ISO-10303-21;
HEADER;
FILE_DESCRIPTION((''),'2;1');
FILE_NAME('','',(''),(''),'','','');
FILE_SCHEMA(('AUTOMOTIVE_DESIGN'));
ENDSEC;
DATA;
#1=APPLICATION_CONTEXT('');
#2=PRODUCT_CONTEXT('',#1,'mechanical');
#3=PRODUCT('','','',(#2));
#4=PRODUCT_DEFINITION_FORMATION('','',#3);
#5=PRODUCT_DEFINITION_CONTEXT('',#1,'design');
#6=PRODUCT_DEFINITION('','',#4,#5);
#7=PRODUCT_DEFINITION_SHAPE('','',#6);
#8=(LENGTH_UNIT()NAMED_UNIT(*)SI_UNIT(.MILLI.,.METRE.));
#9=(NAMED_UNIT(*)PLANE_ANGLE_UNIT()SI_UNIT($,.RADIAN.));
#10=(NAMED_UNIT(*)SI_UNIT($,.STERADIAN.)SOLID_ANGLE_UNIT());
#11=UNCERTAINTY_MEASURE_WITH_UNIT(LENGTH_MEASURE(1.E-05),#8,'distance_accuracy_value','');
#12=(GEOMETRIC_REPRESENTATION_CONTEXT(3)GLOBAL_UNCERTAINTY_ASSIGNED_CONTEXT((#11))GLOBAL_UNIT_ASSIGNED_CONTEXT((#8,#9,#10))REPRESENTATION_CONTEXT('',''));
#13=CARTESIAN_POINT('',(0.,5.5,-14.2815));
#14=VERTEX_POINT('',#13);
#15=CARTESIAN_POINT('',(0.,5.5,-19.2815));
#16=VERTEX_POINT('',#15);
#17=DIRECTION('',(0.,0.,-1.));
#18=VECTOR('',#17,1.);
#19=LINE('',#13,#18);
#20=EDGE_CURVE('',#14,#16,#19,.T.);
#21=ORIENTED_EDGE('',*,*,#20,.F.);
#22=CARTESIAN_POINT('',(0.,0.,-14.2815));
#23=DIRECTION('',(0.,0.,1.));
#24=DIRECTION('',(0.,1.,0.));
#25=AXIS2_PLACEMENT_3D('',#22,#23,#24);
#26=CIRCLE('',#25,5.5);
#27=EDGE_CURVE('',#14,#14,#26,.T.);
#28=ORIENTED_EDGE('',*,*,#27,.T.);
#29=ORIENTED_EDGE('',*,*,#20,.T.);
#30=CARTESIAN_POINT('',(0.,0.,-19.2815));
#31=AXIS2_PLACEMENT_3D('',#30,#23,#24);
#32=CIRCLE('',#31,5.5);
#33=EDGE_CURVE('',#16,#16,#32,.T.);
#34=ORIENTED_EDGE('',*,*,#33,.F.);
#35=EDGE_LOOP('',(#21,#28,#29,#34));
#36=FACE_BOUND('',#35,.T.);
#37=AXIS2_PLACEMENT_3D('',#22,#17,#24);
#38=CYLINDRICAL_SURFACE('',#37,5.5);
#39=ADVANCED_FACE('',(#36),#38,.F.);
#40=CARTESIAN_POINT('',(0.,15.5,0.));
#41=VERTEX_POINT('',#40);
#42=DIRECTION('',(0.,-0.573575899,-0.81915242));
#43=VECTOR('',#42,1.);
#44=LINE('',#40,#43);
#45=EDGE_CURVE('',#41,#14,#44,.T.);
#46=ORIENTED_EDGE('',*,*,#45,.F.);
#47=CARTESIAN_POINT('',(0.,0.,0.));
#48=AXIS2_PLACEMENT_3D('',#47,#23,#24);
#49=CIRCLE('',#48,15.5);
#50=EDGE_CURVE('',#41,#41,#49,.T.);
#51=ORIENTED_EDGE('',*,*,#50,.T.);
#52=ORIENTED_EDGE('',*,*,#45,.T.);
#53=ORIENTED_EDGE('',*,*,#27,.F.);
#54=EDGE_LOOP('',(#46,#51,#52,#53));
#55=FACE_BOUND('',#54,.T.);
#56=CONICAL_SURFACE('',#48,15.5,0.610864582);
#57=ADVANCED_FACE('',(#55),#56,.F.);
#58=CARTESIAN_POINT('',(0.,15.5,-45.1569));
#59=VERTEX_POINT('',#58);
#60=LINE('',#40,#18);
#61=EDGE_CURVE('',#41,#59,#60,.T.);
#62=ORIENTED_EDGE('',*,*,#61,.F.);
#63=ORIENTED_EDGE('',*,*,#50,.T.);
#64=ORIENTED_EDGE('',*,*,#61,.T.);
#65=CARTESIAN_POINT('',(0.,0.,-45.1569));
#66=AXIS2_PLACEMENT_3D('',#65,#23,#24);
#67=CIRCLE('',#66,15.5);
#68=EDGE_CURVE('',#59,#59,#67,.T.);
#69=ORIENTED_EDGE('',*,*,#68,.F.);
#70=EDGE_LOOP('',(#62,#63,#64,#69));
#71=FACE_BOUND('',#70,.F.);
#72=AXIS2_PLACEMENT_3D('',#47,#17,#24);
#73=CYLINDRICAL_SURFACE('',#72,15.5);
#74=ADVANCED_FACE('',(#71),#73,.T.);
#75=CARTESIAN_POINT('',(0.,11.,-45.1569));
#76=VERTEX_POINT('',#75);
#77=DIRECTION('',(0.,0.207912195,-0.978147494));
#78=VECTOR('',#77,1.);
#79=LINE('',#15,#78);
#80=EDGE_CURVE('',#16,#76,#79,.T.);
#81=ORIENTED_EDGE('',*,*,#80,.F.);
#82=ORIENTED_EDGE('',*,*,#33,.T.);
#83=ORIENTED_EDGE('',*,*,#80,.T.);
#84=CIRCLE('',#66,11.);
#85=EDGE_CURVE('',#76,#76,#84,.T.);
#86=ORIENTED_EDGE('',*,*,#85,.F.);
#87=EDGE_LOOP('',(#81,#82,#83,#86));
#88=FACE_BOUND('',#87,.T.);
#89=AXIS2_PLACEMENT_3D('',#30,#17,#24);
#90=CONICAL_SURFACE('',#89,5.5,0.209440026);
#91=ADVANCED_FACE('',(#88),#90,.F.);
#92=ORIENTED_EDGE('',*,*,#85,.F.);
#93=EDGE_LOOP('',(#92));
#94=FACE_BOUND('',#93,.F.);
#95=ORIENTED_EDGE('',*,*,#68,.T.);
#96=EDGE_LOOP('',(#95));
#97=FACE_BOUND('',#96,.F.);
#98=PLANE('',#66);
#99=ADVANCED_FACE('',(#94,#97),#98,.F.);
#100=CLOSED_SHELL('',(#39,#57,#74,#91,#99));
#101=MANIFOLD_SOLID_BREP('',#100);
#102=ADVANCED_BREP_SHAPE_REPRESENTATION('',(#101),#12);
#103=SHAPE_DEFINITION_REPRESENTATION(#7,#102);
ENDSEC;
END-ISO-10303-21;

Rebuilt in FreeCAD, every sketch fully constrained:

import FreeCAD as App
import Part
import Sketcher
from FreeCAD import Vector
Q = App.Units.Quantity


def add_polygon(sketch, points):
    """Adds a closed chain of lines whose ends are joined by coincident constraints."""
    first, n = sketch.GeometryCount, len(points)
    for a, b in zip(points, points[1:] + points[:1]):
        sketch.addGeometry(Part.LineSegment(App.Vector(*a, 0), App.Vector(*b, 0)), False)
    for i in range(n):
        sketch.addConstraint(Sketcher.Constraint("Coincident", first + i, 2, first + (i + 1) % n, 1))

doc = App.newDocument("Part")
params = doc.addObject("Spreadsheet::Sheet", "Params")
for row, (alias, value) in enumerate([
    ("sketch1_height", "5 mm"),
    ("revolution_angle", "360 deg"),
], start=1):
    params.set(f"A{row}", alias)
    params.set(f"B{row}", "=" + value)
    params.setAlias(f"B{row}", alias)

body = doc.addObject("PartDesign::Body", "Body")

sketch1 = body.newObject("Sketcher::SketchObject", "Sketch")
sketch1.AttachmentSupport = (doc.getObject("YZ_Plane"), [""])
sketch1.MapMode = "FlatFace"
add_polygon(sketch1, [(15.5, -45.1569), (15.5, 0), (5.5, -14.2815), (5.5, -19.2815), (11, -45.1569)])
sketch1.addConstraint([
    Sketcher.Constraint("Vertical", 0),
    Sketcher.Constraint("Vertical", 2),
    Sketcher.Constraint("Horizontal", 4),
    Sketcher.Constraint("PointOnObject", 0, 2, -1),
    Sketcher.Constraint("DistanceY", 2, 2, 2, 1, 5.0),
    Sketcher.Constraint("Angle", 1, Q("-125 deg")),
    Sketcher.Constraint("DistanceX", -1, 1, 3, 2, 11.0),
    Sketcher.Constraint("DistanceX", -1, 1, 0, 2, 15.5),
    Sketcher.Constraint("DistanceX", -1, 1, 1, 2, 5.5),
    Sketcher.Constraint("DistanceY", 0, 1, 0, 2, 45.157),
])
sketch1.setExpression("Constraints[9]", "Params.sketch1_height")
revolution = body.newObject("PartDesign::Revolution", "Revolution")
revolution.Profile = sketch1
revolution.ReferenceAxis = (sketch1, ["V_Axis"])
revolution.setExpression("Angle", "Params.revolution_angle")

doc.recompute()
